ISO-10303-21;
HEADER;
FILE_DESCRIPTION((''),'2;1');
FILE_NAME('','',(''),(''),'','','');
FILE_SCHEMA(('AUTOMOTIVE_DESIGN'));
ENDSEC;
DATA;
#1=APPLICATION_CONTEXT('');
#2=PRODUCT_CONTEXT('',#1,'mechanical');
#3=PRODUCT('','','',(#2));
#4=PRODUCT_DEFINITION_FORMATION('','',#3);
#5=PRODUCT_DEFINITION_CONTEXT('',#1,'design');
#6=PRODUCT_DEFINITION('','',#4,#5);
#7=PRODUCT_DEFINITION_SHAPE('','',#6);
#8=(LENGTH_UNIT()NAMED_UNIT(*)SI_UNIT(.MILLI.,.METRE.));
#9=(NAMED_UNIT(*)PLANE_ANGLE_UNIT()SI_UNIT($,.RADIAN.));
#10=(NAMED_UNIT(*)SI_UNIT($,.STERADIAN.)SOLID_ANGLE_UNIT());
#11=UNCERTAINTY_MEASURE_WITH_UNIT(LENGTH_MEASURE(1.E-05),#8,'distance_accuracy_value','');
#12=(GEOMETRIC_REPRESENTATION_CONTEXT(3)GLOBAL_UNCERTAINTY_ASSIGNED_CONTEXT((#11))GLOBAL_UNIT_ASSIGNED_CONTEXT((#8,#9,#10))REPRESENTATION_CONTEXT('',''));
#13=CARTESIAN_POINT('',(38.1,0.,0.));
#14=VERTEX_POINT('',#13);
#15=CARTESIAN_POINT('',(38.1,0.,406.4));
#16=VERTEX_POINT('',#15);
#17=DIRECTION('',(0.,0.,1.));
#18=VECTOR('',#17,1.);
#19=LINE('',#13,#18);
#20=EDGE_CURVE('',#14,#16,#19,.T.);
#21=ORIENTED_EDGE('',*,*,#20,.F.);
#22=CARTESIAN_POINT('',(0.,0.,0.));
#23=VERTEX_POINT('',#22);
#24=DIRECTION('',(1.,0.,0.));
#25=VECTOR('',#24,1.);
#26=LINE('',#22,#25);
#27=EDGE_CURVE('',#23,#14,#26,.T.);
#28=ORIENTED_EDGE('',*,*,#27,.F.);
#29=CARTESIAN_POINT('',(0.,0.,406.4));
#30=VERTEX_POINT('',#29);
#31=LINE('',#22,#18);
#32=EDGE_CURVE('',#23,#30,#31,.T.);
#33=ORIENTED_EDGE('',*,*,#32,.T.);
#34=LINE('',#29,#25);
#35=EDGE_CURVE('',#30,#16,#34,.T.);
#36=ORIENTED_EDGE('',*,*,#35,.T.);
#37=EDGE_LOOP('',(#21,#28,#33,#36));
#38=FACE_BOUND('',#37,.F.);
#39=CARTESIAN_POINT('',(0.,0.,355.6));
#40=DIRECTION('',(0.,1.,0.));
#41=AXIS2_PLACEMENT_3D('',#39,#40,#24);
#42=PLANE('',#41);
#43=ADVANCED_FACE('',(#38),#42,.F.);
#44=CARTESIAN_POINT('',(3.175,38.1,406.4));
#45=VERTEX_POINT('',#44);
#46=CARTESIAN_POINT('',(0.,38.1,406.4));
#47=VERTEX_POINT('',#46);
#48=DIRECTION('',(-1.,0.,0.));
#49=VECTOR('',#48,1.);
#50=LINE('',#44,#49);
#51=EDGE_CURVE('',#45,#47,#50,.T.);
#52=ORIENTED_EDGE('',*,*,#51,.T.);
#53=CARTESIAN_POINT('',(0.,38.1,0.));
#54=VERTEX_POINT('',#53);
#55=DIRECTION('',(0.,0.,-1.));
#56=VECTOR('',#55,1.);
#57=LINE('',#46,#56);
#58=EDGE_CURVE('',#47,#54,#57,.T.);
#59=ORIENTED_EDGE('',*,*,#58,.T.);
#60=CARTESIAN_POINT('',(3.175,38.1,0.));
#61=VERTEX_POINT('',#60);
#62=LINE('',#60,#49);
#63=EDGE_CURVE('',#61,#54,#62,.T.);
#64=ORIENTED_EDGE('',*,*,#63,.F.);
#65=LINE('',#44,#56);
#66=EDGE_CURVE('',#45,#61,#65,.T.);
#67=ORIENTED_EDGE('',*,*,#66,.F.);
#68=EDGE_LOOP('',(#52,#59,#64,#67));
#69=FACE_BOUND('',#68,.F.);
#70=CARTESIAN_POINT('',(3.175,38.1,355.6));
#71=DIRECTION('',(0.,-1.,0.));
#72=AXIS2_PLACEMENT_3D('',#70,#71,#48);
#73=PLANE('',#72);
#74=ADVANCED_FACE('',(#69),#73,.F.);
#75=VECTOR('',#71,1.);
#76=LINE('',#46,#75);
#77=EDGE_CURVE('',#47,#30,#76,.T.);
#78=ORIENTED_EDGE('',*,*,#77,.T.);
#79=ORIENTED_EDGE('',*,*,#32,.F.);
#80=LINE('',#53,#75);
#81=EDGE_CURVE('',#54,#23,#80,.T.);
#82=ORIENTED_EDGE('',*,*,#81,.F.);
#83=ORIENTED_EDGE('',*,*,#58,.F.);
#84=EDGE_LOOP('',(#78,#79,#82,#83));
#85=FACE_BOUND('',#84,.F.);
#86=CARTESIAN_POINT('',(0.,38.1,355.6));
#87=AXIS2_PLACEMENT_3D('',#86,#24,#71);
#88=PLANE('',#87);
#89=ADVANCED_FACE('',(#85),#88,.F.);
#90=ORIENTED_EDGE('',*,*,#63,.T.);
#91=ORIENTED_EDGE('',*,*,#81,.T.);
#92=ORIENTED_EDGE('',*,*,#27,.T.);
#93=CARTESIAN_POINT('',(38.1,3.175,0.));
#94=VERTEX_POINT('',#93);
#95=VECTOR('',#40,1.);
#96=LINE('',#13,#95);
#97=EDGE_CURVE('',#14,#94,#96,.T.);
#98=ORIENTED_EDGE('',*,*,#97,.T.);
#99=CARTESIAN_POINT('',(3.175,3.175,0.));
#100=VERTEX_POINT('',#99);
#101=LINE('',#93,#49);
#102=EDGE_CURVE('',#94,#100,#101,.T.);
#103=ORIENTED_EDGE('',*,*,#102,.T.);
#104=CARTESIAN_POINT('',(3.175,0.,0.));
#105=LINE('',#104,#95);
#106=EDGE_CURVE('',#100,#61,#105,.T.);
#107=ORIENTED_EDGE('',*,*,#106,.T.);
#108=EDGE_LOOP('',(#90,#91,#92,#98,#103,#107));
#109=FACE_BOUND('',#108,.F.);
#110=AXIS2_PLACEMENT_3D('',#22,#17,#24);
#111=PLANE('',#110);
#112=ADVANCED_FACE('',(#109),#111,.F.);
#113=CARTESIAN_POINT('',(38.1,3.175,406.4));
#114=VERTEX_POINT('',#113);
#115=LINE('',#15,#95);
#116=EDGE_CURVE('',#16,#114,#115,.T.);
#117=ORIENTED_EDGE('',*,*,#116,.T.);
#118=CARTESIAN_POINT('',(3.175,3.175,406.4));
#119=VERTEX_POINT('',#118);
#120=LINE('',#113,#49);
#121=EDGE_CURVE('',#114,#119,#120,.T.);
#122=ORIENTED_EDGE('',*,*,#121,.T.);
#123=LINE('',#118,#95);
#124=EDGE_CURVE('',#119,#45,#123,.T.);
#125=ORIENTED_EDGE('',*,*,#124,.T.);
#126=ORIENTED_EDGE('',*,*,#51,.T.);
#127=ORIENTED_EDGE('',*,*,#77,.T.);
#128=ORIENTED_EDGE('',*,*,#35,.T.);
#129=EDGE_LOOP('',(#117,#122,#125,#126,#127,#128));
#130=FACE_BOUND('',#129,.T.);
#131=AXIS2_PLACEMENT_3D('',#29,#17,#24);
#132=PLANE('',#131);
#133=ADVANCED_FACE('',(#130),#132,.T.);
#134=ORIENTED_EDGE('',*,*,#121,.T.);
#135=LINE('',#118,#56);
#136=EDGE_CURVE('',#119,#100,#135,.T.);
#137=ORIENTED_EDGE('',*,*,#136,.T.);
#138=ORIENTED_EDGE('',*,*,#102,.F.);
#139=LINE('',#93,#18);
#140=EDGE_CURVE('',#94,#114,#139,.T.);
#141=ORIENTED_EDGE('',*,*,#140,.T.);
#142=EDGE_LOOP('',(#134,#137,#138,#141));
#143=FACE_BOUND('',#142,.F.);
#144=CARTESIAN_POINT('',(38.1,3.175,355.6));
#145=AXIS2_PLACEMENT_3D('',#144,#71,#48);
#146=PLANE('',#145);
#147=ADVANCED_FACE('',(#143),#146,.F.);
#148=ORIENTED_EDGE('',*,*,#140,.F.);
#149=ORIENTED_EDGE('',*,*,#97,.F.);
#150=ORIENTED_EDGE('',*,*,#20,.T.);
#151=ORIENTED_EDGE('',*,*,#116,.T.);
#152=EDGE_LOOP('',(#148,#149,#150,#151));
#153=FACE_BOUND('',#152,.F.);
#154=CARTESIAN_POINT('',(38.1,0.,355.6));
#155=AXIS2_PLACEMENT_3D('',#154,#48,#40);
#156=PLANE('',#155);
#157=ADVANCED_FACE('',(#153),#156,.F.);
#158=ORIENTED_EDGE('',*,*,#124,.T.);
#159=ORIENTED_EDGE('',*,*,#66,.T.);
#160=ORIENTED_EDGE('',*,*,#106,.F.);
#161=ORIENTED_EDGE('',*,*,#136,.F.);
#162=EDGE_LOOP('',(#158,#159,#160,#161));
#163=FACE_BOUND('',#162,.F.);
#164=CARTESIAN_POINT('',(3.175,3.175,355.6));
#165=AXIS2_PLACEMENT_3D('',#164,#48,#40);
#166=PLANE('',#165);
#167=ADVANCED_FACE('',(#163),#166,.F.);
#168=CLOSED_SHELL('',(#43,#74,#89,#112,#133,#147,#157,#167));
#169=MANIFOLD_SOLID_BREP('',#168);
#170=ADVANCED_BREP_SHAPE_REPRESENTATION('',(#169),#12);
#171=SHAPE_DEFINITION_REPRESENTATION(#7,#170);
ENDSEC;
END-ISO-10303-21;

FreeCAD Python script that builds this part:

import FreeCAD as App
import Part
import Sketcher
from FreeCAD import Vector
Q = App.Units.Quantity

doc = App.newDocument("Part")
body = doc.addObject("PartDesign::Body", "Body")

# Sketch on XY plane
sketch1 = body.newObject("Sketcher::SketchObject", "Sketch")
sketch1.AttachmentSupport = (doc.getObject("XY_Plane"), [""])
sketch1.MapMode = "FlatFace"
sketch1.addGeometry(Part.LineSegment(Vector(0, 3.175, 0), Vector(0, 0, 0)), False)
sketch1.addGeometry(Part.LineSegment(Vector(0, 0, 0), Vector(38.1, 0, 0)), False)
sketch1.addGeometry(Part.LineSegment(Vector(38.1, 0, 0), Vector(38.1, 3.175, 0)), False)
sketch1.addGeometry(Part.LineSegment(Vector(38.1, 3.175, 0), Vector(0, 3.175, 0)), False)
sketch1.addConstraint(Sketcher.Constraint("Coincident", 0, 2, 1, 1))
sketch1.addConstraint(Sketcher.Constraint("Coincident", 1, 2, 2, 1))
sketch1.addConstraint(Sketcher.Constraint("Coincident", 2, 2, 3, 1))
sketch1.addConstraint(Sketcher.Constraint("Coincident", 3, 2, 0, 1))
sketch1.addConstraint(Sketcher.Constraint("Vertical", 0))
sketch1.addConstraint(Sketcher.Constraint("Horizontal", 1))
sketch1.addConstraint(Sketcher.Constraint("Vertical", 2))
sketch1.addConstraint(Sketcher.Constraint("Horizontal", 3))
sketch1.addConstraint(Sketcher.Constraint("Coincident", 0, 2, -1, 1))
sketch1.addConstraint(Sketcher.Constraint("DistanceX", 1, 1, 1, 2, Q("1.5 in")))
sketch1.addConstraint(Sketcher.Constraint("DistanceY", 0, 2, 0, 1, Q("0.125 in")))
pad1 = body.newObject("PartDesign::Pad", "Pad")
pad1.Profile = sketch1
pad1.Length = Q("14 in")

# Sketch on XY plane
sketch2 = body.newObject("Sketcher::SketchObject", "Sketch001")
sketch2.AttachmentSupport = (doc.getObject("XY_Plane"), [""])
sketch2.MapMode = "FlatFace"
sketch2.AttachmentOffset = App.Placement(Vector(0, 0, 14 * 25.4), App.Rotation())
sketch2.addGeometry(Part.LineSegment(Vector(0, 38.1, 0), Vector(0, 0, 0)), False)
sketch2.addGeometry(Part.LineSegment(Vector(0, 0, 0), Vector(3.175, 0, 0)), False)
sketch2.addGeometry(Part.LineSegment(Vector(3.175, 0, 0), Vector(3.175, 38.1, 0)), False)
sketch2.addGeometry(Part.LineSegment(Vector(3.175, 38.1, 0), Vector(0, 38.1, 0)), False)
sketch2.addConstraint(Sketcher.Constraint("Coincident", 0, 2, 1, 1))
sketch2.addConstraint(Sketcher.Constraint("Coincident", 1, 2, 2, 1))
sketch2.addConstraint(Sketcher.Constraint("Coincident", 2, 2, 3, 1))
sketch2.addConstraint(Sketcher.Constraint("Coincident", 3, 2, 0, 1))
sketch2.addConstraint(Sketcher.Constraint("Vertical", 0))
sketch2.addConstraint(Sketcher.Constraint("Horizontal", 1))
sketch2.addConstraint(Sketcher.Constraint("Vertical", 2))
sketch2.addConstraint(Sketcher.Constraint("Horizontal", 3))
sketch2.addConstraint(Sketcher.Constraint("Coincident", 0, 2, -1, 1))
sketch2.addConstraint(Sketcher.Constraint("DistanceY", 0, 2, 0, 1, Q("1.5 in")))
sketch2.addConstraint(Sketcher.Constraint("DistanceX", 1, 1, 1, 2, Q("0.125 in")))
pad2 = body.newObject("PartDesign::Pad", "Pad001")
pad2.Profile = sketch2
pad2.Length = Q("14 in")
pad2.Reversed = True

# Sketch on XY plane
sketch3 = body.newObject("Sketcher::SketchObject", "Sketch002")
sketch3.AttachmentSupport = (doc.getObject("XY_Plane"), [""])
sketch3.MapMode = "FlatFace"
sketch3.AttachmentOffset = App.Placement(Vector(0, 0, 14 * 25.4), App.Rotation())
sketch3.addGeometry(Part.LineSegment(Vector(0, 38.1, 0), Vector(0, 0, 0)), False)
sketch3.addGeometry(Part.LineSegment(Vector(0, 0, 0), Vector(38.1, 0, 0)), False)
sketch3.addGeometry(Part.LineSegment(Vector(38.1, 0, 0), Vector(38.1, 3.175, 0)), False)
sketch3.addGeometry(Part.LineSegment(Vector(38.1, 3.175, 0), Vector(3.175, 3.175, 0)), False)
sketch3.addGeometry(Part.LineSegment(Vector(3.175, 3.175, 0), Vector(3.175, 38.1, 0)), False)
sketch3.addGeometry(Part.LineSegment(Vector(3.175, 38.1, 0), Vector(0, 38.1, 0)), False)
sketch3.addConstraint(Sketcher.Constraint("Coincident", 0, 2, 1, 1))
sketch3.addConstraint(Sketcher.Constraint("Coincident", 1, 2, 2, 1))
sketch3.addConstraint(Sketcher.Constraint("Coincident", 2, 2, 3, 1))
sketch3.addConstraint(Sketcher.Constraint("Coincident", 3, 2, 4, 1))
sketch3.addConstraint(Sketcher.Constraint("Coincident", 4, 2, 5, 1))
sketch3.addConstraint(Sketcher.Constraint("Coincident", 5, 2, 0, 1))
sketch3.addConstraint(Sketcher.Constraint("Vertical", 0))
sketch3.addConstraint(Sketcher.Constraint("Horizontal", 1))
sketch3.addConstraint(Sketcher.Constraint("Vertical", 2))
sketch3.addConstraint(Sketcher.Constraint("Horizontal", 3))
sketch3.addConstraint(Sketcher.Constraint("Vertical", 4))
sketch3.addConstraint(Sketcher.Constraint("Horizontal", 5))
sketch3.addConstraint(Sketcher.Constraint("Coincident", 0, 2, -1, 1))
sketch3.addConstraint(Sketcher.Constraint("Equal", 1, 0))
sketch3.addConstraint(Sketcher.Constraint("Equal", 5, 2))
sketch3.addConstraint(Sketcher.Constraint("DistanceX", 1, 1, 1, 2, Q("1.5 in")))
sketch3.addConstraint(Sketcher.Constraint("DistanceX", 3, 2, 3, 1, Q("1.375 in")))
pad3 = body.newObject("PartDesign::Pad", "Pad002")
pad3.Profile = sketch3
pad3.Length = Q("2 in")

doc.recompute()
